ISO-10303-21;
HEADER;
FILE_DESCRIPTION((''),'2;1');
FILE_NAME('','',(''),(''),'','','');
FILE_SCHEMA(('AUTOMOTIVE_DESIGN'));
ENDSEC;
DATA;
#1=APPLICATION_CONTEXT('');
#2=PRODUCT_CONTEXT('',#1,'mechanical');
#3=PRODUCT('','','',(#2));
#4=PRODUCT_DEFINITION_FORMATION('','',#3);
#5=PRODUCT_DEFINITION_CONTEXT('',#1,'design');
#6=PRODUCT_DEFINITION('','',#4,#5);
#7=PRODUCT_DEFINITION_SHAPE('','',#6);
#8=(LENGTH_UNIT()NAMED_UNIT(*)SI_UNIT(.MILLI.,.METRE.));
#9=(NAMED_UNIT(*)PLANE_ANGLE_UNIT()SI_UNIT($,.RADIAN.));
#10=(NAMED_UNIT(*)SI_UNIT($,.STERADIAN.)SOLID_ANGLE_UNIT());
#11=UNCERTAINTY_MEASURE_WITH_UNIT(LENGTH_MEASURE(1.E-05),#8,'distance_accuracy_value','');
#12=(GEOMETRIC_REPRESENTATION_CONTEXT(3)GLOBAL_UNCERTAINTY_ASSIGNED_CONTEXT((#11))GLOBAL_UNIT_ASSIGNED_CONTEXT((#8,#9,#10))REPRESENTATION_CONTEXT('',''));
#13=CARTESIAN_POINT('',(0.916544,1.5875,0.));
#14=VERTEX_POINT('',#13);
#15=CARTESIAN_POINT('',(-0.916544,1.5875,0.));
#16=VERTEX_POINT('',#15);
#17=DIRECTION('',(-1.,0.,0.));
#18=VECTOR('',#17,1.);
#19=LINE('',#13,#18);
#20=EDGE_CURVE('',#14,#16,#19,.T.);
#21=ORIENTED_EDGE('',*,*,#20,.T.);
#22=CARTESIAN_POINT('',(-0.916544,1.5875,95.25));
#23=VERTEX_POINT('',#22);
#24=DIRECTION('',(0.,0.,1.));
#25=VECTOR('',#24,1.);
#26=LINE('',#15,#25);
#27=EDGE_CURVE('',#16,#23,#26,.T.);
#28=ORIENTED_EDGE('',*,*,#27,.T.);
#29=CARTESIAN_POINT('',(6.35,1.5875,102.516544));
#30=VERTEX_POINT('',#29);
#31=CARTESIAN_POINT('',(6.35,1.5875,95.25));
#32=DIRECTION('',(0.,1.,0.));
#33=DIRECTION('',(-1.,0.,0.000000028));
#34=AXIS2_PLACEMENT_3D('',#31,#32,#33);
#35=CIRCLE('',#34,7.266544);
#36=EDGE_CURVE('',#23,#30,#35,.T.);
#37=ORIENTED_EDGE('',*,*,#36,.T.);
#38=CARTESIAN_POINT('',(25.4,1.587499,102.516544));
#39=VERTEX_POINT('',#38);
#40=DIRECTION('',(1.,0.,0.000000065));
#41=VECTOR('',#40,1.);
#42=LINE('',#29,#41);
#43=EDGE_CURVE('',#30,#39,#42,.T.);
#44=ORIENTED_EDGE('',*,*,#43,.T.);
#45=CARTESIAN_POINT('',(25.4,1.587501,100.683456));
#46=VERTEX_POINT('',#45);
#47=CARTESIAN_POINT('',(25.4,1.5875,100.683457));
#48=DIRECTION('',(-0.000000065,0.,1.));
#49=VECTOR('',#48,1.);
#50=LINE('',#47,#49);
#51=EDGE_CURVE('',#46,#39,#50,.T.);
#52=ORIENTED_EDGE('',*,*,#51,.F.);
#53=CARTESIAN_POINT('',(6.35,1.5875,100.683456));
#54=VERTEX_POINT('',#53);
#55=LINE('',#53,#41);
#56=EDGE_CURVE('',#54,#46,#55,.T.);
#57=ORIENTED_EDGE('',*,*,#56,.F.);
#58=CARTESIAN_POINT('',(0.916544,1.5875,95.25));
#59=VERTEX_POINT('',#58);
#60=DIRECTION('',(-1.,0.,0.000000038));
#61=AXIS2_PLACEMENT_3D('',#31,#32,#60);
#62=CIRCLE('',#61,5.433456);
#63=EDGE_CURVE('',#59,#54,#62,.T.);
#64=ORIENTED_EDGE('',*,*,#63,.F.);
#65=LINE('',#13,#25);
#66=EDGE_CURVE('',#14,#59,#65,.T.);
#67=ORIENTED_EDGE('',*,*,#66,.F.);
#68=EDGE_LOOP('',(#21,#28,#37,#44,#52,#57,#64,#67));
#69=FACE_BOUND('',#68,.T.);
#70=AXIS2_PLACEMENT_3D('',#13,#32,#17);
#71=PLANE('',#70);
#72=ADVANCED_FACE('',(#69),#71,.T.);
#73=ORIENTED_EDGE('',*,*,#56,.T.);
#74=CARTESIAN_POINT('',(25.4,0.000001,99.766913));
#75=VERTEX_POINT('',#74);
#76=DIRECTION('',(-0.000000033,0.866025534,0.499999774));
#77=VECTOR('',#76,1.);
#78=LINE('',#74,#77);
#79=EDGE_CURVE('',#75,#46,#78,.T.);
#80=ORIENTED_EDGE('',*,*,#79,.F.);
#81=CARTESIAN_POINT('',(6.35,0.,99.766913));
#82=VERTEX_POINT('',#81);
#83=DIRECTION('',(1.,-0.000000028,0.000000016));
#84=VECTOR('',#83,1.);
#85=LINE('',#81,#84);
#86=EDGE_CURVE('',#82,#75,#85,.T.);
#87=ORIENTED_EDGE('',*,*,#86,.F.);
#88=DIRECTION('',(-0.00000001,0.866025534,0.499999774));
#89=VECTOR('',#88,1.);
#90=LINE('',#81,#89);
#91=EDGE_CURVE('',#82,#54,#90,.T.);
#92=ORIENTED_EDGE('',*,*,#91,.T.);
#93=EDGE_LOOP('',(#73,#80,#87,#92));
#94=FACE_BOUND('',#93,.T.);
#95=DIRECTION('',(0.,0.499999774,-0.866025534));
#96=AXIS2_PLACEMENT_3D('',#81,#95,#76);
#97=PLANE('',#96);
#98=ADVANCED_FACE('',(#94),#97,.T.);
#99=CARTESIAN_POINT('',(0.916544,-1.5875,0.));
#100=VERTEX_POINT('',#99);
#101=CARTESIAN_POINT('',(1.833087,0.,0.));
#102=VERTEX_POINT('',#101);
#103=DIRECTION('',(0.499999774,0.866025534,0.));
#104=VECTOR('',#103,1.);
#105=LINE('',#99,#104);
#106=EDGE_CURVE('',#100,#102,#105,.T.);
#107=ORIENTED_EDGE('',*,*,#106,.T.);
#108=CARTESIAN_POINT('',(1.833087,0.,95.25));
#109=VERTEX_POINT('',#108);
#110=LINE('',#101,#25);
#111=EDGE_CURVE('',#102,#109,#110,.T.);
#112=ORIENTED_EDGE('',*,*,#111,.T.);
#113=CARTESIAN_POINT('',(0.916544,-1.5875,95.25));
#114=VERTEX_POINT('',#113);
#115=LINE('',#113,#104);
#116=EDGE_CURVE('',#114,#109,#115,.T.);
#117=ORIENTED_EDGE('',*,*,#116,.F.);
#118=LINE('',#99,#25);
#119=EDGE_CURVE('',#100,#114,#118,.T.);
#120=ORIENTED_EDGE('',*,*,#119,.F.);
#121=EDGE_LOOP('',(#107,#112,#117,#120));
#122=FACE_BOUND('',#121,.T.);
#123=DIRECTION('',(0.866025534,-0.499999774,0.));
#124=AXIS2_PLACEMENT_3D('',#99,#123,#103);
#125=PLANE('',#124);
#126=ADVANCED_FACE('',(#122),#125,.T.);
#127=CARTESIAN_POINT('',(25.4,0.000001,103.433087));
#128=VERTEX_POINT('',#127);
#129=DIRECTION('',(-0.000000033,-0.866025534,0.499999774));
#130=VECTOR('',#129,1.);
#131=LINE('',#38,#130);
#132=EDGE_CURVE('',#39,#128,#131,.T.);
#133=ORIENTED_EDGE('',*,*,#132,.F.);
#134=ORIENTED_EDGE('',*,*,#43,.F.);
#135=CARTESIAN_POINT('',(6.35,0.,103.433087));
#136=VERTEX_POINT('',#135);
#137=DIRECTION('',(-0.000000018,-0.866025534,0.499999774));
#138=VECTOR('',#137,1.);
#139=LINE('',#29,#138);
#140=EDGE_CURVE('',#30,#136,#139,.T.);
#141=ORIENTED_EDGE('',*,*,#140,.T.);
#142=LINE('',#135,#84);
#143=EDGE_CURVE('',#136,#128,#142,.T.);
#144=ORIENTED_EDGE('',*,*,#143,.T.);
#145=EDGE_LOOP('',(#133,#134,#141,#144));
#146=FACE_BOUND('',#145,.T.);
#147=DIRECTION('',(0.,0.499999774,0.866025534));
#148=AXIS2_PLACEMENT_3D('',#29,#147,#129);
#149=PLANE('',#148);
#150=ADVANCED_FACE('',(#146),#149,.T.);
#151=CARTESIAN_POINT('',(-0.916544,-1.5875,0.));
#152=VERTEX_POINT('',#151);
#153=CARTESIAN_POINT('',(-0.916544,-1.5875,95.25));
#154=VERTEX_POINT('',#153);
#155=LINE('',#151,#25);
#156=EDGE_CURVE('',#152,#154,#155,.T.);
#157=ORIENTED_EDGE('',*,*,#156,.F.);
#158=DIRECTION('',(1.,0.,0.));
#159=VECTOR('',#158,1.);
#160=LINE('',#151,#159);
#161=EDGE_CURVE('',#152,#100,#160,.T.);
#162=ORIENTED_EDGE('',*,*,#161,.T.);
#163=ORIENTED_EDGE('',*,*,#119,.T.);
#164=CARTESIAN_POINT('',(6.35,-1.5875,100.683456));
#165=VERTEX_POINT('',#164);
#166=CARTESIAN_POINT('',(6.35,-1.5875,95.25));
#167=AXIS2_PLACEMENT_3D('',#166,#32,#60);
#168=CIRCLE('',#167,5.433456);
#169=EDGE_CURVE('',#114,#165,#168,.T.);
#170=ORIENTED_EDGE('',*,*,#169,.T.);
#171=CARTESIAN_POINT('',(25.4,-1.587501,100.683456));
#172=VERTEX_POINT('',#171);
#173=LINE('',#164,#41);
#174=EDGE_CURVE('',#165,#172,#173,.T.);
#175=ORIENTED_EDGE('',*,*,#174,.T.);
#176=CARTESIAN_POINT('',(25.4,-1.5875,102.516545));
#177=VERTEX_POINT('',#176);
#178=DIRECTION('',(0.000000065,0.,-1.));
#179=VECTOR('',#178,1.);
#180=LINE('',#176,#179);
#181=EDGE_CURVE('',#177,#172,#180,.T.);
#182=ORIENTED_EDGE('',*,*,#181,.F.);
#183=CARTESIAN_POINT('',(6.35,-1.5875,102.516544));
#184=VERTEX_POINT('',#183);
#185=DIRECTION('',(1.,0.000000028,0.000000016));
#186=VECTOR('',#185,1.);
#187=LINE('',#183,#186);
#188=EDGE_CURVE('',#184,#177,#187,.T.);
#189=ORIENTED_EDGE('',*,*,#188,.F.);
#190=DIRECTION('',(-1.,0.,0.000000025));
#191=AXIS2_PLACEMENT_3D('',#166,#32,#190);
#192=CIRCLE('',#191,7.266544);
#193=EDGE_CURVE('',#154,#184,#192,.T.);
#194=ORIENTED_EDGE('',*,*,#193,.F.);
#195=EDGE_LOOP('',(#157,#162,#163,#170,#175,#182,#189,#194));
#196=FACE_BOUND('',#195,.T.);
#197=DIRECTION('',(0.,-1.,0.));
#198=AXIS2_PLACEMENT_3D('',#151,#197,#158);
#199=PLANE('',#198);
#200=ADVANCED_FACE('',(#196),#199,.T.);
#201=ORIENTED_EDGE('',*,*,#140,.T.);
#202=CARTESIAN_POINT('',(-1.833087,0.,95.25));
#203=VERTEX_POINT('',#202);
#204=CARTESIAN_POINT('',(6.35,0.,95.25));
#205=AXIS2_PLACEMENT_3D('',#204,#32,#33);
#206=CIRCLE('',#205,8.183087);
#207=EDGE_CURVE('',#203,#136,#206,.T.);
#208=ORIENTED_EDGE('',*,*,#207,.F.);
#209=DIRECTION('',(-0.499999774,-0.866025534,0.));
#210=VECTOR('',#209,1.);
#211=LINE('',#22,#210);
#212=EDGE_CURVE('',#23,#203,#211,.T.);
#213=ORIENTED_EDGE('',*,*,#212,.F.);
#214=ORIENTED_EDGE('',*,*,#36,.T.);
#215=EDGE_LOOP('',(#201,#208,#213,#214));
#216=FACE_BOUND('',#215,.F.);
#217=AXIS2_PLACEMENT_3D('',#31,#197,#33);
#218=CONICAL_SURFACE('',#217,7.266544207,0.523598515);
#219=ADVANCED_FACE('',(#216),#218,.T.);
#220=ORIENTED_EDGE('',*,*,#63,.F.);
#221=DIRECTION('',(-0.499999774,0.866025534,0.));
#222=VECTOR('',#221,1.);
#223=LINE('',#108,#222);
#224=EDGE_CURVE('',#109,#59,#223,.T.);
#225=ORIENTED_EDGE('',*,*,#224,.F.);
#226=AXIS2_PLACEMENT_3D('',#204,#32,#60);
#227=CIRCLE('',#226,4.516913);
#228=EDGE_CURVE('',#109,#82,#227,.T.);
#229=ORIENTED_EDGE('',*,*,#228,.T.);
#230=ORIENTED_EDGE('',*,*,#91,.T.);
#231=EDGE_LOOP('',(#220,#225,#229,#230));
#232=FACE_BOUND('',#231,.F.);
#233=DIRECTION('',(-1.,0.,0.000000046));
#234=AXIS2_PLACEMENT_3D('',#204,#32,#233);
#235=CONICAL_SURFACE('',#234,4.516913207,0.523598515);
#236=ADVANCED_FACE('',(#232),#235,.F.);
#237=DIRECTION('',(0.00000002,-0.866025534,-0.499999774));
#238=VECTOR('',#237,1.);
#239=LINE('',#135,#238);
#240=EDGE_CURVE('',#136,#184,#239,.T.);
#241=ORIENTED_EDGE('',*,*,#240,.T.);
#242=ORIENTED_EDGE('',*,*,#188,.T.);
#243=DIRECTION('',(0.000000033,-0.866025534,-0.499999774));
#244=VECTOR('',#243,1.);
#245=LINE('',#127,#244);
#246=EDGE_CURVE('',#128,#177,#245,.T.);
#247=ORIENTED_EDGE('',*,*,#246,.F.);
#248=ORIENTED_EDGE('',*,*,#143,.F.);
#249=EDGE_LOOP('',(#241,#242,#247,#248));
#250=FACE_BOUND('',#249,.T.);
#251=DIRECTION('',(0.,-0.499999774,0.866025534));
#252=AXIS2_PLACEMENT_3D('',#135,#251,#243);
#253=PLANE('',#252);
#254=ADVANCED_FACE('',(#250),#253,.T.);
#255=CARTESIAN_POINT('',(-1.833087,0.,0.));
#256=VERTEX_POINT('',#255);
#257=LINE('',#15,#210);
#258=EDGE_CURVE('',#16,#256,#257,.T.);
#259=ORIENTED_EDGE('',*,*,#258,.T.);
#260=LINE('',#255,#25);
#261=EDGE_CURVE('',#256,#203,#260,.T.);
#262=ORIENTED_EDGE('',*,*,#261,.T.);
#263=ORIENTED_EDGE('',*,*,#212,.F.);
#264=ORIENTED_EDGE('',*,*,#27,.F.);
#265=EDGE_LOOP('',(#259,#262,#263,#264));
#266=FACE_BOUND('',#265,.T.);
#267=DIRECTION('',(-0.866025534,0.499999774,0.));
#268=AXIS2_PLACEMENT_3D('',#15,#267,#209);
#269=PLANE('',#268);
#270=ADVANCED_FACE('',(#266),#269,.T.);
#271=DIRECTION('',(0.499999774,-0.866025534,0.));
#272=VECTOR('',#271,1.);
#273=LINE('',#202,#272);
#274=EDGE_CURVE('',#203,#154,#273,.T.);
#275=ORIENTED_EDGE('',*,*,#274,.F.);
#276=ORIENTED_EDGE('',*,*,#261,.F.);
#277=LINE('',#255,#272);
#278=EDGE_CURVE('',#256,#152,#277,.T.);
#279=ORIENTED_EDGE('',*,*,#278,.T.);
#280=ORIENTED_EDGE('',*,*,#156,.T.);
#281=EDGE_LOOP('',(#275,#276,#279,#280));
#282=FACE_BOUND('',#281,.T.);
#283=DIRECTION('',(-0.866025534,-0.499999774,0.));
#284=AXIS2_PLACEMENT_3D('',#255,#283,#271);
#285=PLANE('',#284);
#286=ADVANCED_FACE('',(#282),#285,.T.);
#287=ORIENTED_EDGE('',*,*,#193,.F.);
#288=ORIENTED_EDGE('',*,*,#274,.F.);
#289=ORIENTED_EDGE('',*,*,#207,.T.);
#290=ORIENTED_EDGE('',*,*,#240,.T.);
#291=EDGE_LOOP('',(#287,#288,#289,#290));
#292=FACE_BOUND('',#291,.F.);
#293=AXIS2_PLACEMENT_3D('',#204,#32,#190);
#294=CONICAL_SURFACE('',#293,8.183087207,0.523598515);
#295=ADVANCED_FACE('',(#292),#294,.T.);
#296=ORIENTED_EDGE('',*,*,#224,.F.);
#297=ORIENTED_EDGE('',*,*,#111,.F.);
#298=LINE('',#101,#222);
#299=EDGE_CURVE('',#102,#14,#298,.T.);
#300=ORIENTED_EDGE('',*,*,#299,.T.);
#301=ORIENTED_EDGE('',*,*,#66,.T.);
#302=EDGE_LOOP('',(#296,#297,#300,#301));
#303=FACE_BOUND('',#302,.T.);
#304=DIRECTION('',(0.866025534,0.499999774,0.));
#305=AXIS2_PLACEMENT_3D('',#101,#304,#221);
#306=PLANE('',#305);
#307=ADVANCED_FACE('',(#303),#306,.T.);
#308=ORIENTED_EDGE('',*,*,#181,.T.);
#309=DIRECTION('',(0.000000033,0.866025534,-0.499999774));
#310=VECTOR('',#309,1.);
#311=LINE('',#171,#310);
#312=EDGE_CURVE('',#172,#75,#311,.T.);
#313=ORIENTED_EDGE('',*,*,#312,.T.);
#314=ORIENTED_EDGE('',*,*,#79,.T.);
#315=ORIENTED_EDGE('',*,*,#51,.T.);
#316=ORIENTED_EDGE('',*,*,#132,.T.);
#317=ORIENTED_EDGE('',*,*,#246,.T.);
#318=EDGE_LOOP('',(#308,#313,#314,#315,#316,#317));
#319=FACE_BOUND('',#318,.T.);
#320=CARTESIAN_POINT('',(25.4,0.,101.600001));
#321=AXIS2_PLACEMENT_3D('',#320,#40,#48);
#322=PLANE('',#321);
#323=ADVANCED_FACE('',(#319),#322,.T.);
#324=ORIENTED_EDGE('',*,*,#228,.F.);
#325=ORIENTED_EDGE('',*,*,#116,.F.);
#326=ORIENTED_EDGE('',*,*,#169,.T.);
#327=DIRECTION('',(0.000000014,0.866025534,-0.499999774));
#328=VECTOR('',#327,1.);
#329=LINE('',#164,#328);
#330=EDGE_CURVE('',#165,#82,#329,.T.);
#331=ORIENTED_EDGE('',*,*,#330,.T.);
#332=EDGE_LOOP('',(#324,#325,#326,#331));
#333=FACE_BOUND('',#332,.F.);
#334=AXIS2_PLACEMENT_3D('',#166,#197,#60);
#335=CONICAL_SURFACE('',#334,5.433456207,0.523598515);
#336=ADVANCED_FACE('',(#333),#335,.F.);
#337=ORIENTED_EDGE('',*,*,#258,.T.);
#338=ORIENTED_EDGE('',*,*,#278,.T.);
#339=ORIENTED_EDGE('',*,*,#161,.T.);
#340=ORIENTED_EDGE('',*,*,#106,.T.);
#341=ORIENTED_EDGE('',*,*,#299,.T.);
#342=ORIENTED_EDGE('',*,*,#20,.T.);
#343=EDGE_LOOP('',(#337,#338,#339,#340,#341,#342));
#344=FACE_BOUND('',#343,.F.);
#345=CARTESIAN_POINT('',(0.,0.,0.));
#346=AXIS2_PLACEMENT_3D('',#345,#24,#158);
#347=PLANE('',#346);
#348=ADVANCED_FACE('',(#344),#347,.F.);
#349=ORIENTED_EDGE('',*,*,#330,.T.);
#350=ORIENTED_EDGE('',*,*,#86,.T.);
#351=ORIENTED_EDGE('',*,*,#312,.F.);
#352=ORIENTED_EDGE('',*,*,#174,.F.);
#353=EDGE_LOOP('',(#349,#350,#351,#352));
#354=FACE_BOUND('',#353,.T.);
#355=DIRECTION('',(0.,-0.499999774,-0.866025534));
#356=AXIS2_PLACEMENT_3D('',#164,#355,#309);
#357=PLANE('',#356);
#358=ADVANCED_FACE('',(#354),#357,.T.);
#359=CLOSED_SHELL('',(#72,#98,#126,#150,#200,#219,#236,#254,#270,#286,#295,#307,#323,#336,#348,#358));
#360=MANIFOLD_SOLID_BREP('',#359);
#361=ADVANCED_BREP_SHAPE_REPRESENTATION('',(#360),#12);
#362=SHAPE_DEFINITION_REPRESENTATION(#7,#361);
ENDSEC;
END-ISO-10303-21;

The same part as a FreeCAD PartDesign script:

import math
import FreeCAD as App
import Part
import Sketcher

V = App.Vector
Q = App.Units.Quantity

doc = App.newDocument("Part")
params = doc.addObject("Spreadsheet::Sheet", "Params")
for row, (alias, value) in enumerate([
    ("sketch2_radius", "0.25 in"),
], start=1):
    params.set(f"A{row}", alias)
    params.set(f"B{row}", "=" + value)
    params.setAlias(f"B{row}", alias)

body = doc.addObject("PartDesign::Body", "Body")

# Sketch on XY plane
sketch1 = body.newObject("Sketcher::SketchObject", "Sketch")
sketch1.AttachmentSupport = (doc.getObject("XY_Plane"), [""])
sketch1.MapMode = "FlatFace"
sketch1.addGeometry([
    Part.LineSegment(V(0.9, 1.6, 0), V(-0.9, 1.6, 0)),  # 0
    Part.LineSegment(V(-0.9, 1.6, 0), V(-1.8, 0, 0)),  # 1
    Part.LineSegment(V(-1.8, 0, 0), V(-0.9, -1.6, 0)),  # 2
    Part.LineSegment(V(-0.9, -1.6, 0), V(0.9, -1.6, 0)),  # 3
    Part.LineSegment(V(0.9, -1.6, 0), V(1.8, 0, 0)),  # 4
    Part.LineSegment(V(1.8, 0, 0), V(0.9, 1.6, 0)),  # 5
], False)
sketch1.addConstraint([
    Sketcher.Constraint("Coincident", 0, 2, 1, 1),
    Sketcher.Constraint("Coincident", 1, 2, 2, 1),
    Sketcher.Constraint("Coincident", 2, 2, 3, 1),
    Sketcher.Constraint("Coincident", 3, 2, 4, 1),
    Sketcher.Constraint("Coincident", 4, 2, 5, 1),
    Sketcher.Constraint("Coincident", 5, 2, 0, 1),
    Sketcher.Constraint("Horizontal", 0),
    Sketcher.Constraint("Horizontal", 3),
    Sketcher.Constraint("Symmetric", 0, 2, 3, 2, -1, 1),
    Sketcher.Constraint("Symmetric", 1, 2, 4, 2, -1, 1),
    Sketcher.Constraint("PointOnObject", 1, 2, -1),
    Sketcher.Constraint("Parallel", 2, 5),
    Sketcher.Constraint("Vertical", 0, 2, 2, 2),
    Sketcher.Constraint("Angle", 1, Q("-119.999985 deg")),
    Sketcher.Constraint("DistanceY", -1, 1, 0, 2, Q("0.0625 in")),
    Sketcher.Constraint("DistanceX", 0, 2, 0, 1, Q("1.833088 mm")),
])

# Sketch on XZ plane
sketch2 = body.newObject("Sketcher::SketchObject", "Sketch001")
sketch2.AttachmentSupport = (doc.getObject("XZ_Plane"), [""])
sketch2.MapMode = "FlatFace"
sketch2.addGeometry([
    Part.LineSegment(V(0, 0, 0), V(0, 95, 0)),
    Part.ArcOfCircle(Part.Circle(V(6, 95, 0), V(0, 0, 1), 6), math.radians(90), math.radians(180)),
    Part.LineSegment(V(6, 102, 0), V(25, 102, 0)),
], False)
sketch2.addConstraint([
    Sketcher.Constraint("Tangent", 0, 2, 1, 2),
    Sketcher.Constraint("Tangent", 1, 1, 2, 1),
    Sketcher.Constraint("Vertical", 0),
    Sketcher.Constraint("Horizontal", 2),
    Sketcher.Constraint("Coincident", 0, 1, -1, 1),
    Sketcher.Constraint("Radius", 1, Q("0.25 in")),
    Sketcher.Constraint("DistanceY", -1, 1, 1, 1, Q("4 in")),
    Sketcher.Constraint("DistanceX", -1, 1, 2, 2, Q("1 in")),
])
sketch2.setExpression("Constraints[5]", "Params.sketch2_radius")
doc.recompute()

additivepipe = body.newObject("PartDesign::AdditivePipe", "AdditivePipe")
additivepipe.Profile = sketch1
additivepipe.Spine = (sketch2, ["Edge1", "Edge2", "Edge3"])

doc.recompute()
